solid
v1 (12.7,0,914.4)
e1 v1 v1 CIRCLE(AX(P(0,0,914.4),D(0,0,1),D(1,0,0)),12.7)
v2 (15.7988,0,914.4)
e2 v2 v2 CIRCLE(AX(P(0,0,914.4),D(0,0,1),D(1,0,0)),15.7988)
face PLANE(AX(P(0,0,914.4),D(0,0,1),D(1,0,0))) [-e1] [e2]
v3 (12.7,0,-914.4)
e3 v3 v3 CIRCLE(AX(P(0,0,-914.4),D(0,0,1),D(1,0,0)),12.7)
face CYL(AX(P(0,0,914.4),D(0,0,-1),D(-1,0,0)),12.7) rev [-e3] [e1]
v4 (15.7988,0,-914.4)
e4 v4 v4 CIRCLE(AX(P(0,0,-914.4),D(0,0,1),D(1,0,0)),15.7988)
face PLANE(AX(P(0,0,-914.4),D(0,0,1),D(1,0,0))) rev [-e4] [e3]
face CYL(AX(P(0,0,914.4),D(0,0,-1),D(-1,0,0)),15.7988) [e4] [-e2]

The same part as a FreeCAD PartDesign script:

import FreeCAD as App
import Part
import Sketcher

V = App.Vector
Q = App.Units.Quantity

doc = App.newDocument("Part")
params = doc.addObject("Spreadsheet::Sheet", "Params")
for row, (alias, value) in enumerate([
    ("sketch1_diameter", "1 in"),
    ("sketch1_diameter2", "1.244 in"),
    ("pad1_length", "36 in"),
    ("pad1_length2", "36 in"),
], start=1):
    params.set(f"A{row}", alias)
    params.set(f"B{row}", "=" + value)
    params.setAlias(f"B{row}", alias)

body = doc.addObject("PartDesign::Body", "Body")

sketch1 = doc.addObject("Sketcher::SketchObject", "Sketch")
body.addObject(sketch1)
sketch1.AttachmentSupport = (doc.XY_Plane, [""])
sketch1.MapMode = "FlatFace"
sketch1.addGeometry([
    Part.Circle(V(0, 0, 0), V(0, 0, 1), 15.7988),
    Part.Circle(V(0, 0, 0), V(0, 0, 1), 12.7),
], False)
sketch1.addConstraint([
    Sketcher.Constraint("Coincident", 0, 3, -1, 1),
    Sketcher.Constraint("Coincident", 1, 3, -1, 1),
    Sketcher.Constraint("Diameter", 1, Q("1 in")),
    Sketcher.Constraint("Diameter", 0, Q("1.244 in")),
])
sketch1.setExpression("Constraints[2]", "Params.sketch1_diameter")
sketch1.setExpression("Constraints[3]", "Params.sketch1_diameter2")
pad1 = doc.addObject("PartDesign::Pad", "Pad")
body.addObject(pad1)
pad1.Profile = sketch1
pad1.Type = "TwoLengths"
pad1.setExpression("Length", "Params.pad1_length")
pad1.setExpression("Length2", "Params.pad1_length2")

doc.recompute()
